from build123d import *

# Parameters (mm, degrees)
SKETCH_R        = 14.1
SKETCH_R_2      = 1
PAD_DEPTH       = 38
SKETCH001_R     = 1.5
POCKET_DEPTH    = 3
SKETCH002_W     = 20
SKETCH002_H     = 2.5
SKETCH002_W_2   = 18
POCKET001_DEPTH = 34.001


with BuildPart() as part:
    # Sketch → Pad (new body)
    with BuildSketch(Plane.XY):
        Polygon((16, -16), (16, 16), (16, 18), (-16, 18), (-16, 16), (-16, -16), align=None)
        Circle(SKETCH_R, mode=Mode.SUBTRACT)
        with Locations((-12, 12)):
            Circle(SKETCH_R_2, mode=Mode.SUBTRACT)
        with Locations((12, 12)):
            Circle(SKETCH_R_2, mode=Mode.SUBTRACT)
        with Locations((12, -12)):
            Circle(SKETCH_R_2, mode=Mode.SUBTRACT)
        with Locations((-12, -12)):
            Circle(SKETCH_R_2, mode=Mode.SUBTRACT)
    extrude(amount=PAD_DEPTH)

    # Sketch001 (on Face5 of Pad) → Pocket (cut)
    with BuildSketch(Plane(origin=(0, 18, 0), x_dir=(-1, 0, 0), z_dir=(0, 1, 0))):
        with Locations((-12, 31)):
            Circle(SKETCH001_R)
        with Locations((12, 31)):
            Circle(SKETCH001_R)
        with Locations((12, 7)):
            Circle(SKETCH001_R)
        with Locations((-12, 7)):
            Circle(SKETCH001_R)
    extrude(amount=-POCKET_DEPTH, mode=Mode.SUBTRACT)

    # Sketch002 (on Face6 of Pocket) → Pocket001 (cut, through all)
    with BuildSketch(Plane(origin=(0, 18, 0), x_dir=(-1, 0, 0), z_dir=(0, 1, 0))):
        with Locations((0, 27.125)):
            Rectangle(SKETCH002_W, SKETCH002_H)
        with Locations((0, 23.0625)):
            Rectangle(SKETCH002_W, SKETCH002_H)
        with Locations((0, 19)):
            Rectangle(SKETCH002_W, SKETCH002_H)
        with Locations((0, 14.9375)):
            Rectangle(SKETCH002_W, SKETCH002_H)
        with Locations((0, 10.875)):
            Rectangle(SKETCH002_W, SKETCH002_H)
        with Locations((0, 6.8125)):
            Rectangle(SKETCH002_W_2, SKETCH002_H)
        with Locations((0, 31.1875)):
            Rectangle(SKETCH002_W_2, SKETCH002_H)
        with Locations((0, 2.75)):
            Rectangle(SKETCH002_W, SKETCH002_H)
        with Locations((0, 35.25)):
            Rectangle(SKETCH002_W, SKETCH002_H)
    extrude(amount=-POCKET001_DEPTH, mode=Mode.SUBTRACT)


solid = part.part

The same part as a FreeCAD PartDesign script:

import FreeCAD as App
import Part
import Sketcher
Q = App.Units.Quantity

doc = App.newDocument("Part")
body = doc.addObject("PartDesign::Body", "Body")

# Sketch on XY plane
sketch1 = body.newObject("Sketcher::SketchObject", "Sketch")
sketch1.AttachmentSupport = (doc.getObject("XY_Plane"), [""])
sketch1.MapMode = "FlatFace"
sketch1.addGeometry(Part.LineSegment(App.Vector(16, -16, 0), App.Vector(16, 18, 0)), False)
sketch1.addGeometry(Part.LineSegment(App.Vector(16, 18, 0), App.Vector(-16, 18, 0)), False)
sketch1.addGeometry(Part.LineSegment(App.Vector(-16, 18, 0), App.Vector(-16, -16, 0)), False)
sketch1.addGeometry(Part.LineSegment(App.Vector(-16, -16, 0), App.Vector(16, -16, 0)), False)
sketch1.addGeometry(Part.Circle(App.Vector(-12, -12, 0), App.Vector(0, 0, 1), 1), False)
sketch1.addGeometry(Part.Circle(App.Vector(12, -12, 0), App.Vector(0, 0, 1), 1), False)
sketch1.addGeometry(Part.Circle(App.Vector(-12, 12, 0), App.Vector(0, 0, 1), 1), False)
sketch1.addGeometry(Part.Circle(App.Vector(0, 0, 0), App.Vector(0, 0, 1), 14.1), False)
sketch1.addGeometry(Part.Circle(App.Vector(12, 12, 0), App.Vector(0, 0, 1), 1), False)
sketch1.addConstraint(Sketcher.Constraint("Coincident", 0, 2, 1, 1))
sketch1.addConstraint(Sketcher.Constraint("Coincident", 1, 2, 2, 1))
sketch1.addConstraint(Sketcher.Constraint("Coincident", 2, 2, 3, 1))
sketch1.addConstraint(Sketcher.Constraint("Coincident", 3, 2, 0, 1))
sketch1.addConstraint(Sketcher.Constraint("Vertical", 0))
sketch1.addConstraint(Sketcher.Constraint("Horizontal", 1))
sketch1.addConstraint(Sketcher.Constraint("Vertical", 2))
sketch1.addConstraint(Sketcher.Constraint("Horizontal", 3))
sketch1.addConstraint(Sketcher.Constraint("Coincident", 7, 3, -1, 1))
sketch1.addConstraint(Sketcher.Constraint("Equal", 4, 5))
sketch1.addConstraint(Sketcher.Constraint("Equal", 5, 6))
sketch1.addConstraint(Sketcher.Constraint("Equal", 6, 8))
sketch1.addConstraint(Sketcher.Constraint("Symmetric", 5, 3, 6, 3, -1, 1))
sketch1.addConstraint(Sketcher.Constraint("Symmetric", 4, 3, 8, 3, -1, 1))
sketch1.addConstraint(Sketcher.Constraint("Symmetric", 4, 3, 5, 3, -2))
sketch1.addConstraint(Sketcher.Constraint("Diameter", 4, Q("2 mm")))
sketch1.addConstraint(Sketcher.Constraint("Diameter", 7, Q("28.2 mm")))
sketch1.addConstraint(Sketcher.Constraint("DistanceX", 1, 2, 1, 1, Q("32 mm")))
sketch1.addConstraint(Sketcher.Constraint("DistanceY", 0, 1, 0, 2, Q("34 mm")))
sketch1.addConstraint(Sketcher.Constraint("DistanceX", 4, 3, -1, 1, Q("12 mm")))
sketch1.addConstraint(Sketcher.Constraint("DistanceY", 4, 3, -1, 1, Q("12 mm")))
sketch1.addConstraint(Sketcher.Constraint("DistanceX", -1, 1, 0, 2, Q("16 mm")))
sketch1.addConstraint(Sketcher.Constraint("DistanceY", -1, 1, 0, 2, Q("18 mm")))
pad1 = body.newObject("PartDesign::Pad", "Pad")
pad1.Profile = sketch1
pad1.Length = 38

# Sketch on XZ plane
sketch2 = body.newObject("Sketcher::SketchObject", "Sketch001")
sketch2.AttachmentSupport = (doc.getObject("XZ_Plane"), [""])
sketch2.MapMode = "FlatFace"
sketch2.AttachmentOffset = App.Placement(App.Vector(0, 0, -18), App.Rotation())
sketch2.addGeometry(Part.Circle(App.Vector(12, 31, 0), App.Vector(0, 0, 1), 1.5), False)
sketch2.addGeometry(Part.Circle(App.Vector(-12, 31, 0), App.Vector(0, 0, 1), 1.5), False)
sketch2.addGeometry(Part.Circle(App.Vector(-12, 7, 0), App.Vector(0, 0, 1), 1.5), False)
sketch2.addGeometry(Part.Circle(App.Vector(12, 7, 0), App.Vector(0, 0, 1), 1.5), False)
sketch2.addConstraint(Sketcher.Constraint("Equal", 0, 1))
sketch2.addConstraint(Sketcher.Constraint("Equal", 1, 2))
sketch2.addConstraint(Sketcher.Constraint("Equal", 2, 3))
sketch2.addConstraint(Sketcher.Constraint("Symmetric", 0, 3, 1, 3, -2))
sketch2.addConstraint(Sketcher.Constraint("Symmetric", 2, 3, 3, 3, -2))
sketch2.addConstraint(Sketcher.Constraint("Vertical", 1, 3, 2, 3))
sketch2.addConstraint(Sketcher.Constraint("Diameter", 0, Q("3 mm")))
sketch2.addConstraint(Sketcher.Constraint("DistanceX", -1, 1, 0, 3, Q("12 mm")))
sketch2.addConstraint(Sketcher.Constraint("DistanceY", -1, 1, 0, 3, Q("31 mm")))
sketch2.addConstraint(Sketcher.Constraint("DistanceY", -1, 1, 2, 3, Q("7 mm")))
pocket1 = body.newObject("PartDesign::Pocket", "Pocket")
pocket1.Profile = sketch2
pocket1.Length = 3
pocket1.Reversed = True

# Sketch on XZ plane
sketch3 = body.newObject("Sketcher::SketchObject", "Sketch002")
sketch3.AttachmentSupport = (doc.getObject("XZ_Plane"), [""])
sketch3.MapMode = "FlatFace"
sketch3.AttachmentOffset = App.Placement(App.Vector(0, 0, -18), App.Rotation())
sketch3.addGeometry(Part.LineSegment(App.Vector(10, 28.4, 0), App.Vector(10, 25.9, 0)), False)
sketch3.addGeometry(Part.LineSegment(App.Vector(10, 25.9, 0), App.Vector(-10, 25.9, 0)), False)
sketch3.addGeometry(Part.LineSegment(App.Vector(-10, 25.9, 0), App.Vector(-10, 28.4, 0)), False)
sketch3.addGeometry(Part.LineSegment(App.Vector(-10, 28.4, 0), App.Vector(10, 28.4, 0)), False)
sketch3.addGeometry(Part.LineSegment(App.Vector(10, 24.3, 0), App.Vector(10, 21.8, 0)), False)
sketch3.addGeometry(Part.LineSegment(App.Vector(10, 21.8, 0), App.Vector(-10, 21.8, 0)), False)
sketch3.addGeometry(Part.LineSegment(App.Vector(-10, 21.8, 0), App.Vector(-10, 24.3, 0)), False)
sketch3.addGeometry(Part.LineSegment(App.Vector(-10, 24.3, 0), App.Vector(10, 24.3, 0)), False)
sketch3.addGeometry(Part.LineSegment(App.Vector(10, 20.2, 0), App.Vector(10, 17.8, 0)), False)
sketch3.addGeometry(Part.LineSegment(App.Vector(10, 17.8, 0), App.Vector(-10, 17.8, 0)), False)
sketch3.addGeometry(Part.LineSegment(App.Vector(-10, 17.8, 0), App.Vector(-10, 20.2, 0)), False)
sketch3.addGeometry(Part.LineSegment(App.Vector(-10, 20.2, 0), App.Vector(10, 20.2, 0)), False)
sketch3.addGeometry(Part.LineSegment(App.Vector(10, 16.2, 0), App.Vector(10, 13.7, 0)), False)
sketch3.addGeometry(Part.LineSegment(App.Vector(10, 13.7, 0), App.Vector(-10, 13.7, 0)), False)
sketch3.addGeometry(Part.LineSegment(App.Vector(-10, 13.7, 0), App.Vector(-10, 16.2, 0)), False)
sketch3.addGeometry(Part.LineSegment(App.Vector(-10, 16.2, 0), App.Vector(10, 16.2, 0)), False)
sketch3.addGeometry(Part.LineSegment(App.Vector(10, 12.1, 0), App.Vector(10, 9.6, 0)), False)
sketch3.addGeometry(Part.LineSegment(App.Vector(10, 9.6, 0), App.Vector(-10, 9.6, 0)), False)
sketch3.addGeometry(Part.LineSegment(App.Vector(-10, 9.6, 0), App.Vector(-10, 12.1, 0)), False)
sketch3.addGeometry(Part.LineSegment(App.Vector(-10, 12.1, 0), App.Vector(10, 12.1, 0)), False)
sketch3.addGeometry(Part.LineSegment(App.Vector(9, 8.1, 0), App.Vector(9, 5.6, 0)), False)
sketch3.addGeometry(Part.LineSegment(App.Vector(9, 5.6, 0), App.Vector(-9, 5.6, 0)), False)
sketch3.addGeometry(Part.LineSegment(App.Vector(-9, 5.6, 0), App.Vector(-9, 8.1, 0)), False)
sketch3.addGeometry(Part.LineSegment(App.Vector(-9, 8.1, 0), App.Vector(9, 8.1, 0)), False)
sketch3.addGeometry(Part.LineSegment(App.Vector(9, 32.4, 0), App.Vector(9, 29.9, 0)), False)
sketch3.addGeometry(Part.LineSegment(App.Vector(9, 29.9, 0), App.Vector(-9, 29.9, 0)), False)
sketch3.addGeometry(Part.LineSegment(App.Vector(-9, 29.9, 0), App.Vector(-9, 32.4, 0)), False)
sketch3.addGeometry(Part.LineSegment(App.Vector(-9, 32.4, 0), App.Vector(9, 32.4, 0)), False)
sketch3.addGeometry(Part.LineSegment(App.Vector(10, 4, 0), App.Vector(10, 1.5, 0)), False)
sketch3.addGeometry(Part.LineSegment(App.Vector(10, 1.5, 0), App.Vector(-10, 1.5, 0)), False)
sketch3.addGeometry(Part.LineSegment(App.Vector(-10, 1.5, 0), App.Vector(-10, 4, 0)), False)
sketch3.addGeometry(Part.LineSegment(App.Vector(-10, 4, 0), App.Vector(10, 4, 0)), False)
sketch3.addGeometry(Part.LineSegment(App.Vector(10, 36.5, 0), App.Vector(10, 34, 0)), False)
sketch3.addGeometry(Part.LineSegment(App.Vector(10, 34, 0), App.Vector(-10, 34, 0)), False)
sketch3.addGeometry(Part.LineSegment(App.Vector(-10, 34, 0), App.Vector(-10, 36.5, 0)), False)
sketch3.addGeometry(Part.LineSegment(App.Vector(-10, 36.5, 0), App.Vector(10, 36.5, 0)), False)
sketch3.addConstraint(Sketcher.Constraint("Coincident", 0, 2, 1, 1))
sketch3.addConstraint(Sketcher.Constraint("Coincident", 1, 2, 2, 1))
sketch3.addConstraint(Sketcher.Constraint("Coincident", 2, 2, 3, 1))
sketch3.addConstraint(Sketcher.Constraint("Coincident", 3, 2, 0, 1))
sketch3.addConstraint(Sketcher.Constraint("Coincident", 4, 2, 5, 1))
sketch3.addConstraint(Sketcher.Constraint("Coincident", 5, 2, 6, 1))
sketch3.addConstraint(Sketcher.Constraint("Coincident", 6, 2, 7, 1))
sketch3.addConstraint(Sketcher.Constraint("Coincident", 7, 2, 4, 1))
sketch3.addConstraint(Sketcher.Constraint("Coincident", 8, 2, 9, 1))
sketch3.addConstraint(Sketcher.Constraint("Coincident", 9, 2, 10, 1))
sketch3.addConstraint(Sketcher.Constraint("Coincident", 10, 2, 11, 1))
sketch3.addConstraint(Sketcher.Constraint("Coincident", 11, 2, 8, 1))
sketch3.addConstraint(Sketcher.Constraint("Coincident", 12, 2, 13, 1))
sketch3.addConstraint(Sketcher.Constraint("Coincident", 13, 2, 14, 1))
sketch3.addConstraint(Sketcher.Constraint("Coincident", 14, 2, 15, 1))
sketch3.addConstraint(Sketcher.Constraint("Coincident", 15, 2, 12, 1))
sketch3.addConstraint(Sketcher.Constraint("Coincident", 16, 2, 17, 1))
sketch3.addConstraint(Sketcher.Constraint("Coincident", 17, 2, 18, 1))
sketch3.addConstraint(Sketcher.Constraint("Coincident", 18, 2, 19, 1))
sketch3.addConstraint(Sketcher.Constraint("Coincident", 19, 2, 16, 1))
sketch3.addConstraint(Sketcher.Constraint("Coincident", 20, 2, 21, 1))
sketch3.addConstraint(Sketcher.Constraint("Coincident", 21, 2, 22, 1))
sketch3.addConstraint(Sketcher.Constraint("Coincident", 22, 2, 23, 1))
sketch3.addConstraint(Sketcher.Constraint("Coincident", 23, 2, 20, 1))
sketch3.addConstraint(Sketcher.Constraint("Coincident", 24, 2, 25, 1))
sketch3.addConstraint(Sketcher.Constraint("Coincident", 25, 2, 26, 1))
sketch3.addConstraint(Sketcher.Constraint("Coincident", 26, 2, 27, 1))
sketch3.addConstraint(Sketcher.Constraint("Coincident", 27, 2, 24, 1))
sketch3.addConstraint(Sketcher.Constraint("Coincident", 28, 2, 29, 1))
sketch3.addConstraint(Sketcher.Constraint("Coincident", 29, 2, 30, 1))
sketch3.addConstraint(Sketcher.Constraint("Coincident", 30, 2, 31, 1))
sketch3.addConstraint(Sketcher.Constraint("Coincident", 31, 2, 28, 1))
sketch3.addConstraint(Sketcher.Constraint("Coincident", 32, 2, 33, 1))
sketch3.addConstraint(Sketcher.Constraint("Coincident", 33, 2, 34, 1))
sketch3.addConstraint(Sketcher.Constraint("Coincident", 34, 2, 35, 1))
sketch3.addConstraint(Sketcher.Constraint("Coincident", 35, 2, 32, 1))
sketch3.addConstraint(Sketcher.Constraint("Vertical", 0))
sketch3.addConstraint(Sketcher.Constraint("Horizontal", 1))
sketch3.addConstraint(Sketcher.Constraint("Vertical", 2))
sketch3.addConstraint(Sketcher.Constraint("Horizontal", 3))
sketch3.addConstraint(Sketcher.Constraint("Vertical", 4))
sketch3.addConstraint(Sketcher.Constraint("Horizontal", 5))
sketch3.addConstraint(Sketcher.Constraint("Vertical", 6))
sketch3.addConstraint(Sketcher.Constraint("Horizontal", 7))
sketch3.addConstraint(Sketcher.Constraint("Vertical", 8))
sketch3.addConstraint(Sketcher.Constraint("Horizontal", 9))
sketch3.addConstraint(Sketcher.Constraint("Vertical", 10))
sketch3.addConstraint(Sketcher.Constraint("Horizontal", 11))
sketch3.addConstraint(Sketcher.Constraint("Vertical", 12))
sketch3.addConstraint(Sketcher.Constraint("Horizontal", 13))
sketch3.addConstraint(Sketcher.Constraint("Vertical", 14))
sketch3.addConstraint(Sketcher.Constraint("Horizontal", 15))
sketch3.addConstraint(Sketcher.Constraint("Vertical", 16))
sketch3.addConstraint(Sketcher.Constraint("Horizontal", 17))
sketch3.addConstraint(Sketcher.Constraint("Vertical", 18))
sketch3.addConstraint(Sketcher.Constraint("Horizontal", 19))
sketch3.addConstraint(Sketcher.Constraint("Vertical", 20))
sketch3.addConstraint(Sketcher.Constraint("Horizontal", 21))
sketch3.addConstraint(Sketcher.Constraint("Vertical", 22))
sketch3.addConstraint(Sketcher.Constraint("Horizontal", 23))
sketch3.addConstraint(Sketcher.Constraint("Vertical", 24))
sketch3.addConstraint(Sketcher.Constraint("Horizontal", 25))
sketch3.addConstraint(Sketcher.Constraint("Vertical", 26))
sketch3.addConstraint(Sketcher.Constraint("Horizontal", 27))
sketch3.addConstraint(Sketcher.Constraint("Vertical", 28))
sketch3.addConstraint(Sketcher.Constraint("Horizontal", 29))
sketch3.addConstraint(Sketcher.Constraint("Vertical", 30))
sketch3.addConstraint(Sketcher.Constraint("Horizontal", 31))
sketch3.addConstraint(Sketcher.Constraint("Vertical", 32))
sketch3.addConstraint(Sketcher.Constraint("Horizontal", 33))
sketch3.addConstraint(Sketcher.Constraint("Vertical", 34))
sketch3.addConstraint(Sketcher.Constraint("Horizontal", 35))
sketch3.addConstraint(Sketcher.Constraint("Vertical", 3, 2, 4, 2))
sketch3.addConstraint(Sketcher.Constraint("Vertical", 2, 2, 5, 2))
sketch3.addConstraint(Sketcher.Constraint("Vertical", 7, 2, 8, 2))
sketch3.addConstraint(Sketcher.Constraint("Vertical", 6, 2, 9, 2))
sketch3.addConstraint(Sketcher.Constraint("Vertical", 11, 2, 12, 2))
sketch3.addConstraint(Sketcher.Constraint("Vertical", 10, 2, 13, 2))
sketch3.addConstraint(Sketcher.Constraint("Vertical", 15, 2, 16, 2))
sketch3.addConstraint(Sketcher.Constraint("Vertical", 14, 2, 17, 2))
sketch3.addConstraint(Sketcher.Constraint("Vertical", 23, 2, 24, 2))
sketch3.addConstraint(Sketcher.Constraint("Vertical", 22, 2, 25, 2))
sketch3.addConstraint(Sketcher.Constraint("Vertical", 19, 2, 28, 2))
sketch3.addConstraint(Sketcher.Constraint("Vertical", 18, 2, 29, 2))
sketch3.addConstraint(Sketcher.Constraint("Vertical", 31, 2, 32, 2))
sketch3.addConstraint(Sketcher.Constraint("Vertical", 30, 2, 33, 2))
sketch3.addConstraint(Sketcher.Constraint("Equal", 2, 4))
sketch3.addConstraint(Sketcher.Constraint("Equal", 6, 8))
sketch3.addConstraint(Sketcher.Constraint("Equal", 10, 12))
sketch3.addConstraint(Sketcher.Constraint("Equal", 14, 16))
sketch3.addConstraint(Sketcher.Constraint("Equal", 18, 20))
sketch3.addConstraint(Sketcher.Constraint("Equal", 22, 24))
sketch3.addConstraint(Sketcher.Constraint("Equal", 26, 28))
sketch3.addConstraint(Sketcher.Constraint("Equal", 30, 32))
sketch3.addConstraint(Sketcher.Constraint("DistanceX", 1, 2, 1, 1, Q("20 mm")))
sketch3.addConstraint(Sketcher.Constraint("DistanceX", 21, 2, 21, 1, Q("18 mm")))
sketch3.addConstraint(Sketcher.Constraint("DistanceY", 0, 2, 0, 1, Q("2.5 mm")))
sketch3.addConstraint(Sketcher.Constraint("DistanceX", -1, 1, 0, 2, Q("10 mm")))
sketch3.addConstraint(Sketcher.Constraint("DistanceX", -1, 1, 20, 2, Q("9 mm")))
sketch3.addConstraint(Sketcher.Constraint("DistanceY", -1, 1, 30, 2, Q("4 mm")))
sketch3.addConstraint(Sketcher.Constraint("DistanceY", -1, 1, 32, 2, Q("34 mm")))
sketch3.addConstraint(Sketcher.Constraint("DistanceY", -1, 1, 8, 2, Q("17.75 mm")))
sketch3.addConstraint(Sketcher.Constraint("DistanceY", -1, 1, 0, 2, Q("25.875 mm")))
sketch3.addConstraint(Sketcher.Constraint("DistanceY", -1, 1, 16, 2, Q("9.625 mm")))
sketch3.addConstraint(Sketcher.Constraint("DistanceY", 12, 2, 4, 2, Q("8.125 mm")))
sketch3.addConstraint(Sketcher.Constraint("DistanceY", 20, 2, 12, 2, Q("8.125 mm")))
sketch3.addConstraint(Sketcher.Constraint("DistanceY", 7, 2, 24, 2, Q("5.625 mm")))
sketch3.addConstraint(Sketcher.Constraint("DistanceY", -1, 1, 4, 2, Q("21.8125 mm")))
pocket2 = body.newObject("PartDesign::Pocket", "Pocket001")
pocket2.Profile = sketch3
pocket2.Type = "ThroughAll"
pocket2.Reversed = True

doc.recompute()
